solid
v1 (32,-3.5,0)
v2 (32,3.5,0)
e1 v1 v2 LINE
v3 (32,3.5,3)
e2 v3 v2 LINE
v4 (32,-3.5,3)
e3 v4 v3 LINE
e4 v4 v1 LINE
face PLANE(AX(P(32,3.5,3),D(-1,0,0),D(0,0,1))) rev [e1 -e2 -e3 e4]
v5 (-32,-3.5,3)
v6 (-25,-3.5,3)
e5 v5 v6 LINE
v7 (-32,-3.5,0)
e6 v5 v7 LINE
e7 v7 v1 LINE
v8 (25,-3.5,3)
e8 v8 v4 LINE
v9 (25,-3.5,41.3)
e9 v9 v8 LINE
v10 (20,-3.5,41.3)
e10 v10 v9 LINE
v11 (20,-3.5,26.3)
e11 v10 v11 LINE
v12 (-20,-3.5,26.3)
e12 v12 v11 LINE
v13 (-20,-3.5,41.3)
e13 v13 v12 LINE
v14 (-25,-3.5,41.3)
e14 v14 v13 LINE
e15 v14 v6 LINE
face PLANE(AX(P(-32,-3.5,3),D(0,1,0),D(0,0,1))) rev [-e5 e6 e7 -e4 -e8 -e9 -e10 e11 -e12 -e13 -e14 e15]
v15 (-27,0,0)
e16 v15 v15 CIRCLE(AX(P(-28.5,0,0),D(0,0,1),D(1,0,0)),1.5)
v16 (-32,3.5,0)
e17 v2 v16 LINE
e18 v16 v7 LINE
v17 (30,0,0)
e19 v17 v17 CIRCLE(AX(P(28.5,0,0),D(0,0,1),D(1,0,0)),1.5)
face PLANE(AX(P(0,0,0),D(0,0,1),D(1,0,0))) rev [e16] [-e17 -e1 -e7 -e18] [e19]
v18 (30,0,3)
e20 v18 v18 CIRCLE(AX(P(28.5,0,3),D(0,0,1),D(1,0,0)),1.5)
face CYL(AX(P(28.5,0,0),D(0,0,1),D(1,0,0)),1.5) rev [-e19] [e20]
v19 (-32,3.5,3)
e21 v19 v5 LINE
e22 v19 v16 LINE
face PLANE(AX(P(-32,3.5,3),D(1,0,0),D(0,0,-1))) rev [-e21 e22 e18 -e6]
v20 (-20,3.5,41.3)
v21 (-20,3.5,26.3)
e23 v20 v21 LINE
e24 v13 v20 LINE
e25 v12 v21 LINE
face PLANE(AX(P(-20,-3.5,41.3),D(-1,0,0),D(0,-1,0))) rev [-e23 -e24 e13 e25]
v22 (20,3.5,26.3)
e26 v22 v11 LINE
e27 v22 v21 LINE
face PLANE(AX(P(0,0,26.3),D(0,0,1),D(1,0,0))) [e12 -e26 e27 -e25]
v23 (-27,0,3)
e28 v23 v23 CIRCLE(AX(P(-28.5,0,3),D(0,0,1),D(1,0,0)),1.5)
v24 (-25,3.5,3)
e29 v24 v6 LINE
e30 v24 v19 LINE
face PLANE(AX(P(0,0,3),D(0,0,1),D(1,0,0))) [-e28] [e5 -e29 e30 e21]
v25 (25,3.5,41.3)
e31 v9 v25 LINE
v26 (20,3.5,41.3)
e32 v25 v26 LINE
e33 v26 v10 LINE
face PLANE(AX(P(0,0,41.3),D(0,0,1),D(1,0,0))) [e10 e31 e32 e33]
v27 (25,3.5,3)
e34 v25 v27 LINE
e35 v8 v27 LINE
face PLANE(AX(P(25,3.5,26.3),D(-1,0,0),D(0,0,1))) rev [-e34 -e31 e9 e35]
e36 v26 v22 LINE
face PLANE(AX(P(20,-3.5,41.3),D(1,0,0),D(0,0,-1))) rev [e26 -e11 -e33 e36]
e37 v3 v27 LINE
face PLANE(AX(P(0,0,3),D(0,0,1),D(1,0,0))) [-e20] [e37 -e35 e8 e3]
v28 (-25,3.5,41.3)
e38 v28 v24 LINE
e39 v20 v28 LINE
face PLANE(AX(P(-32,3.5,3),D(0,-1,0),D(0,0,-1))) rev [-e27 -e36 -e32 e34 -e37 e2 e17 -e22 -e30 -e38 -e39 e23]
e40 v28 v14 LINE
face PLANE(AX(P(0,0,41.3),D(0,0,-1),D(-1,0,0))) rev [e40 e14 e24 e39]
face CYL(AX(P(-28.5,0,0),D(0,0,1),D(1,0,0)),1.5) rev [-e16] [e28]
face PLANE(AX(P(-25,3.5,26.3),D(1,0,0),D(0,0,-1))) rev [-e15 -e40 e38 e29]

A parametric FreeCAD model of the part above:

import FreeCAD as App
import Part
import Sketcher

doc = App.newDocument("Part")
body = doc.addObject("PartDesign::Body", "Body")

sketch1 = body.newObject("Sketcher::SketchObject", "Sketch")
sketch1.AttachmentSupport = (doc.getObject("XY_Plane"), [""])
sketch1.MapMode = "FlatFace"
sketch1.addGeometry([
    Part.LineSegment(App.Vector(-32, 3.5, 0), App.Vector(-32, -3.5, 0)),
    Part.LineSegment(App.Vector(-32, -3.5, 0), App.Vector(32, -3.5, 0)),
    Part.LineSegment(App.Vector(32, -3.5, 0), App.Vector(32, 3.5, 0)),
    Part.LineSegment(App.Vector(32, 3.5, 0), App.Vector(-32, 3.5, 0)),
], False)
sketch1.addConstraint([
    Sketcher.Constraint("Coincident", 0, 2, 1, 1),
    Sketcher.Constraint("Coincident", 1, 2, 2, 1),
    Sketcher.Constraint("Coincident", 2, 2, 3, 1),
    Sketcher.Constraint("Coincident", 3, 2, 0, 1),
    Sketcher.Constraint("Vertical", 0),
    Sketcher.Constraint("Horizontal", 1),
    Sketcher.Constraint("Vertical", 2),
    Sketcher.Constraint("Horizontal", 3),
    Sketcher.Constraint("Symmetric", 0, 2, 2, 2, -1, 1),
    Sketcher.Constraint("DistanceX", 1, 1, 1, 2, 64.0),
    Sketcher.Constraint("DistanceY", 0, 2, 0, 1, 7.0),
])
pad1 = body.newObject("PartDesign::Pad", "Pad")
pad1.Profile = sketch1
pad1.Length = 3

sketch2 = body.newObject("Sketcher::SketchObject", "Sketch001")
sketch2.AttachmentSupport = (doc.getObject("XY_Plane"), [""])
sketch2.MapMode = "FlatFace"
sketch2.AttachmentOffset = App.Placement(App.Vector(0, 0, 3), App.Rotation())
sketch2.addGeometry([
    Part.LineSegment(App.Vector(-25, 3.5, 0), App.Vector(-25, -3.5, 0)),
    Part.LineSegment(App.Vector(-25, -3.5, 0), App.Vector(25, -3.5, 0)),
    Part.LineSegment(App.Vector(25, -3.5, 0), App.Vector(25, 3.5, 0)),
    Part.LineSegment(App.Vector(25, 3.5, 0), App.Vector(-25, 3.5, 0)),
], False)
sketch2.addConstraint([
    Sketcher.Constraint("Coincident", 0, 2, 1, 1),
    Sketcher.Constraint("Coincident", 1, 2, 2, 1),
    Sketcher.Constraint("Coincident", 2, 2, 3, 1),
    Sketcher.Constraint("Coincident", 3, 2, 0, 1),
    Sketcher.Constraint("Vertical", 0),
    Sketcher.Constraint("Horizontal", 1),
    Sketcher.Constraint("Vertical", 2),
    Sketcher.Constraint("Horizontal", 3),
    Sketcher.Constraint("Symmetric", 0, 2, 2, 2, -1, 1),
    Sketcher.Constraint("DistanceX", 1, 1, 1, 2, 50.0),
    Sketcher.Constraint("DistanceY", 0, 2, 0, 1, 7.0),
])
pad2 = body.newObject("PartDesign::Pad", "Pad001")
pad2.Profile = sketch2
pad2.Length = 23.3

sketch3 = body.newObject("Sketcher::SketchObject", "Sketch002")
sketch3.AttachmentSupport = (doc.getObject("XY_Plane"), [""])
sketch3.MapMode = "FlatFace"
sketch3.AttachmentOffset = App.Placement(App.Vector(0, 0, 26.3), App.Rotation())
sketch3.addGeometry([
    Part.LineSegment(App.Vector(-25, 3.5, 0), App.Vector(-25, -3.5, 0)),
    Part.LineSegment(App.Vector(-25, -3.5, 0), App.Vector(-20, -3.5, 0)),
    Part.LineSegment(App.Vector(-20, -3.5, 0), App.Vector(-20, 3.5, 0)),
    Part.LineSegment(App.Vector(-20, 3.5, 0), App.Vector(-25, 3.5, 0)),
], False)
sketch3.addConstraint([
    Sketcher.Constraint("Coincident", 0, 2, 1, 1),
    Sketcher.Constraint("Coincident", 1, 2, 2, 1),
    Sketcher.Constraint("Coincident", 2, 2, 3, 1),
    Sketcher.Constraint("Coincident", 3, 2, 0, 1),
    Sketcher.Constraint("Vertical", 0),
    Sketcher.Constraint("Horizontal", 1),
    Sketcher.Constraint("Vertical", 2),
    Sketcher.Constraint("Horizontal", 3),
    Sketcher.Constraint("DistanceX", 1, 1, 1, 2, 5.0),
    Sketcher.Constraint("DistanceY", 0, 2, 0, 1, 7.0),
    Sketcher.Constraint("DistanceX", 0, 2, -1, 1, 25.0),
    Sketcher.Constraint("DistanceY", 0, 2, -1, 1, 3.5),
])
pad3 = body.newObject("PartDesign::Pad", "Pad002")
pad3.Profile = sketch3
pad3.Length = 15

sketch4 = body.newObject("Sketcher::SketchObject", "Sketch003")
sketch4.AttachmentSupport = (doc.getObject("XY_Plane"), [""])
sketch4.MapMode = "FlatFace"
sketch4.AttachmentOffset = App.Placement(App.Vector(0, 0, 26.3), App.Rotation())
sketch4.addGeometry([
    Part.LineSegment(App.Vector(20, 3.5, 0), App.Vector(20, -3.5, 0)),
    Part.LineSegment(App.Vector(20, -3.5, 0), App.Vector(25, -3.5, 0)),
    Part.LineSegment(App.Vector(25, -3.5, 0), App.Vector(25, 3.5, 0)),
    Part.LineSegment(App.Vector(25, 3.5, 0), App.Vector(20, 3.5, 0)),
], False)
sketch4.addConstraint([
    Sketcher.Constraint("Coincident", 0, 2, 1, 1),
    Sketcher.Constraint("Coincident", 1, 2, 2, 1),
    Sketcher.Constraint("Coincident", 2, 2, 3, 1),
    Sketcher.Constraint("Coincident", 3, 2, 0, 1),
    Sketcher.Constraint("Vertical", 0),
    Sketcher.Constraint("Horizontal", 1),
    Sketcher.Constraint("Vertical", 2),
    Sketcher.Constraint("Horizontal", 3),
    Sketcher.Constraint("DistanceX", 1, 1, 1, 2, 5.0),
    Sketcher.Constraint("DistanceY", 0, 2, 0, 1, 7.0),
    Sketcher.Constraint("DistanceX", -1, 1, 0, 2, 20.0),
    Sketcher.Constraint("DistanceY", 0, 2, -1, 1, 3.5),
])
pad4 = body.newObject("PartDesign::Pad", "Pad003")
pad4.Profile = sketch4
pad4.Length = 15

sketch5 = body.newObject("Sketcher::SketchObject", "Sketch004")
sketch5.AttachmentSupport = (doc.getObject("XY_Plane"), [""])
sketch5.MapMode = "FlatFace"
sketch5.AttachmentOffset = App.Placement(App.Vector(0, 0, 3), App.Rotation())
sketch5.addGeometry(Part.Circle(App.Vector(-28.5, 0, 0), App.Vector(0, 0, 1), 1.5), False)
sketch5.addConstraint([
    Sketcher.Constraint("PointOnObject", 0, 3, -1),
    Sketcher.Constraint("Diameter", 0, 3.0),
    Sketcher.Constraint("DistanceX", 0, 3, -1, 1, 28.5),
])
pocket1 = body.newObject("PartDesign::Pocket", "Pocket")
pocket1.Profile = sketch5
pocket1.Length = 3

sketch6 = body.newObject("Sketcher::SketchObject", "Sketch005")
sketch6.AttachmentSupport = (doc.getObject("XY_Plane"), [""])
sketch6.MapMode = "FlatFace"
sketch6.AttachmentOffset = App.Placement(App.Vector(0, 0, 3), App.Rotation())
sketch6.addGeometry(Part.Circle(App.Vector(28.5, 0, 0), App.Vector(0, 0, 1), 1.5), False)
sketch6.addConstraint([
    Sketcher.Constraint("PointOnObject", 0, 3, -1),
    Sketcher.Constraint("Diameter", 0, 3.0),
    Sketcher.Constraint("DistanceX", -1, 1, 0, 3, 28.5),
])
pocket2 = body.newObject("PartDesign::Pocket", "Pocket001")
pocket2.Profile = sketch6
pocket2.Length = 3

doc.recompute()
